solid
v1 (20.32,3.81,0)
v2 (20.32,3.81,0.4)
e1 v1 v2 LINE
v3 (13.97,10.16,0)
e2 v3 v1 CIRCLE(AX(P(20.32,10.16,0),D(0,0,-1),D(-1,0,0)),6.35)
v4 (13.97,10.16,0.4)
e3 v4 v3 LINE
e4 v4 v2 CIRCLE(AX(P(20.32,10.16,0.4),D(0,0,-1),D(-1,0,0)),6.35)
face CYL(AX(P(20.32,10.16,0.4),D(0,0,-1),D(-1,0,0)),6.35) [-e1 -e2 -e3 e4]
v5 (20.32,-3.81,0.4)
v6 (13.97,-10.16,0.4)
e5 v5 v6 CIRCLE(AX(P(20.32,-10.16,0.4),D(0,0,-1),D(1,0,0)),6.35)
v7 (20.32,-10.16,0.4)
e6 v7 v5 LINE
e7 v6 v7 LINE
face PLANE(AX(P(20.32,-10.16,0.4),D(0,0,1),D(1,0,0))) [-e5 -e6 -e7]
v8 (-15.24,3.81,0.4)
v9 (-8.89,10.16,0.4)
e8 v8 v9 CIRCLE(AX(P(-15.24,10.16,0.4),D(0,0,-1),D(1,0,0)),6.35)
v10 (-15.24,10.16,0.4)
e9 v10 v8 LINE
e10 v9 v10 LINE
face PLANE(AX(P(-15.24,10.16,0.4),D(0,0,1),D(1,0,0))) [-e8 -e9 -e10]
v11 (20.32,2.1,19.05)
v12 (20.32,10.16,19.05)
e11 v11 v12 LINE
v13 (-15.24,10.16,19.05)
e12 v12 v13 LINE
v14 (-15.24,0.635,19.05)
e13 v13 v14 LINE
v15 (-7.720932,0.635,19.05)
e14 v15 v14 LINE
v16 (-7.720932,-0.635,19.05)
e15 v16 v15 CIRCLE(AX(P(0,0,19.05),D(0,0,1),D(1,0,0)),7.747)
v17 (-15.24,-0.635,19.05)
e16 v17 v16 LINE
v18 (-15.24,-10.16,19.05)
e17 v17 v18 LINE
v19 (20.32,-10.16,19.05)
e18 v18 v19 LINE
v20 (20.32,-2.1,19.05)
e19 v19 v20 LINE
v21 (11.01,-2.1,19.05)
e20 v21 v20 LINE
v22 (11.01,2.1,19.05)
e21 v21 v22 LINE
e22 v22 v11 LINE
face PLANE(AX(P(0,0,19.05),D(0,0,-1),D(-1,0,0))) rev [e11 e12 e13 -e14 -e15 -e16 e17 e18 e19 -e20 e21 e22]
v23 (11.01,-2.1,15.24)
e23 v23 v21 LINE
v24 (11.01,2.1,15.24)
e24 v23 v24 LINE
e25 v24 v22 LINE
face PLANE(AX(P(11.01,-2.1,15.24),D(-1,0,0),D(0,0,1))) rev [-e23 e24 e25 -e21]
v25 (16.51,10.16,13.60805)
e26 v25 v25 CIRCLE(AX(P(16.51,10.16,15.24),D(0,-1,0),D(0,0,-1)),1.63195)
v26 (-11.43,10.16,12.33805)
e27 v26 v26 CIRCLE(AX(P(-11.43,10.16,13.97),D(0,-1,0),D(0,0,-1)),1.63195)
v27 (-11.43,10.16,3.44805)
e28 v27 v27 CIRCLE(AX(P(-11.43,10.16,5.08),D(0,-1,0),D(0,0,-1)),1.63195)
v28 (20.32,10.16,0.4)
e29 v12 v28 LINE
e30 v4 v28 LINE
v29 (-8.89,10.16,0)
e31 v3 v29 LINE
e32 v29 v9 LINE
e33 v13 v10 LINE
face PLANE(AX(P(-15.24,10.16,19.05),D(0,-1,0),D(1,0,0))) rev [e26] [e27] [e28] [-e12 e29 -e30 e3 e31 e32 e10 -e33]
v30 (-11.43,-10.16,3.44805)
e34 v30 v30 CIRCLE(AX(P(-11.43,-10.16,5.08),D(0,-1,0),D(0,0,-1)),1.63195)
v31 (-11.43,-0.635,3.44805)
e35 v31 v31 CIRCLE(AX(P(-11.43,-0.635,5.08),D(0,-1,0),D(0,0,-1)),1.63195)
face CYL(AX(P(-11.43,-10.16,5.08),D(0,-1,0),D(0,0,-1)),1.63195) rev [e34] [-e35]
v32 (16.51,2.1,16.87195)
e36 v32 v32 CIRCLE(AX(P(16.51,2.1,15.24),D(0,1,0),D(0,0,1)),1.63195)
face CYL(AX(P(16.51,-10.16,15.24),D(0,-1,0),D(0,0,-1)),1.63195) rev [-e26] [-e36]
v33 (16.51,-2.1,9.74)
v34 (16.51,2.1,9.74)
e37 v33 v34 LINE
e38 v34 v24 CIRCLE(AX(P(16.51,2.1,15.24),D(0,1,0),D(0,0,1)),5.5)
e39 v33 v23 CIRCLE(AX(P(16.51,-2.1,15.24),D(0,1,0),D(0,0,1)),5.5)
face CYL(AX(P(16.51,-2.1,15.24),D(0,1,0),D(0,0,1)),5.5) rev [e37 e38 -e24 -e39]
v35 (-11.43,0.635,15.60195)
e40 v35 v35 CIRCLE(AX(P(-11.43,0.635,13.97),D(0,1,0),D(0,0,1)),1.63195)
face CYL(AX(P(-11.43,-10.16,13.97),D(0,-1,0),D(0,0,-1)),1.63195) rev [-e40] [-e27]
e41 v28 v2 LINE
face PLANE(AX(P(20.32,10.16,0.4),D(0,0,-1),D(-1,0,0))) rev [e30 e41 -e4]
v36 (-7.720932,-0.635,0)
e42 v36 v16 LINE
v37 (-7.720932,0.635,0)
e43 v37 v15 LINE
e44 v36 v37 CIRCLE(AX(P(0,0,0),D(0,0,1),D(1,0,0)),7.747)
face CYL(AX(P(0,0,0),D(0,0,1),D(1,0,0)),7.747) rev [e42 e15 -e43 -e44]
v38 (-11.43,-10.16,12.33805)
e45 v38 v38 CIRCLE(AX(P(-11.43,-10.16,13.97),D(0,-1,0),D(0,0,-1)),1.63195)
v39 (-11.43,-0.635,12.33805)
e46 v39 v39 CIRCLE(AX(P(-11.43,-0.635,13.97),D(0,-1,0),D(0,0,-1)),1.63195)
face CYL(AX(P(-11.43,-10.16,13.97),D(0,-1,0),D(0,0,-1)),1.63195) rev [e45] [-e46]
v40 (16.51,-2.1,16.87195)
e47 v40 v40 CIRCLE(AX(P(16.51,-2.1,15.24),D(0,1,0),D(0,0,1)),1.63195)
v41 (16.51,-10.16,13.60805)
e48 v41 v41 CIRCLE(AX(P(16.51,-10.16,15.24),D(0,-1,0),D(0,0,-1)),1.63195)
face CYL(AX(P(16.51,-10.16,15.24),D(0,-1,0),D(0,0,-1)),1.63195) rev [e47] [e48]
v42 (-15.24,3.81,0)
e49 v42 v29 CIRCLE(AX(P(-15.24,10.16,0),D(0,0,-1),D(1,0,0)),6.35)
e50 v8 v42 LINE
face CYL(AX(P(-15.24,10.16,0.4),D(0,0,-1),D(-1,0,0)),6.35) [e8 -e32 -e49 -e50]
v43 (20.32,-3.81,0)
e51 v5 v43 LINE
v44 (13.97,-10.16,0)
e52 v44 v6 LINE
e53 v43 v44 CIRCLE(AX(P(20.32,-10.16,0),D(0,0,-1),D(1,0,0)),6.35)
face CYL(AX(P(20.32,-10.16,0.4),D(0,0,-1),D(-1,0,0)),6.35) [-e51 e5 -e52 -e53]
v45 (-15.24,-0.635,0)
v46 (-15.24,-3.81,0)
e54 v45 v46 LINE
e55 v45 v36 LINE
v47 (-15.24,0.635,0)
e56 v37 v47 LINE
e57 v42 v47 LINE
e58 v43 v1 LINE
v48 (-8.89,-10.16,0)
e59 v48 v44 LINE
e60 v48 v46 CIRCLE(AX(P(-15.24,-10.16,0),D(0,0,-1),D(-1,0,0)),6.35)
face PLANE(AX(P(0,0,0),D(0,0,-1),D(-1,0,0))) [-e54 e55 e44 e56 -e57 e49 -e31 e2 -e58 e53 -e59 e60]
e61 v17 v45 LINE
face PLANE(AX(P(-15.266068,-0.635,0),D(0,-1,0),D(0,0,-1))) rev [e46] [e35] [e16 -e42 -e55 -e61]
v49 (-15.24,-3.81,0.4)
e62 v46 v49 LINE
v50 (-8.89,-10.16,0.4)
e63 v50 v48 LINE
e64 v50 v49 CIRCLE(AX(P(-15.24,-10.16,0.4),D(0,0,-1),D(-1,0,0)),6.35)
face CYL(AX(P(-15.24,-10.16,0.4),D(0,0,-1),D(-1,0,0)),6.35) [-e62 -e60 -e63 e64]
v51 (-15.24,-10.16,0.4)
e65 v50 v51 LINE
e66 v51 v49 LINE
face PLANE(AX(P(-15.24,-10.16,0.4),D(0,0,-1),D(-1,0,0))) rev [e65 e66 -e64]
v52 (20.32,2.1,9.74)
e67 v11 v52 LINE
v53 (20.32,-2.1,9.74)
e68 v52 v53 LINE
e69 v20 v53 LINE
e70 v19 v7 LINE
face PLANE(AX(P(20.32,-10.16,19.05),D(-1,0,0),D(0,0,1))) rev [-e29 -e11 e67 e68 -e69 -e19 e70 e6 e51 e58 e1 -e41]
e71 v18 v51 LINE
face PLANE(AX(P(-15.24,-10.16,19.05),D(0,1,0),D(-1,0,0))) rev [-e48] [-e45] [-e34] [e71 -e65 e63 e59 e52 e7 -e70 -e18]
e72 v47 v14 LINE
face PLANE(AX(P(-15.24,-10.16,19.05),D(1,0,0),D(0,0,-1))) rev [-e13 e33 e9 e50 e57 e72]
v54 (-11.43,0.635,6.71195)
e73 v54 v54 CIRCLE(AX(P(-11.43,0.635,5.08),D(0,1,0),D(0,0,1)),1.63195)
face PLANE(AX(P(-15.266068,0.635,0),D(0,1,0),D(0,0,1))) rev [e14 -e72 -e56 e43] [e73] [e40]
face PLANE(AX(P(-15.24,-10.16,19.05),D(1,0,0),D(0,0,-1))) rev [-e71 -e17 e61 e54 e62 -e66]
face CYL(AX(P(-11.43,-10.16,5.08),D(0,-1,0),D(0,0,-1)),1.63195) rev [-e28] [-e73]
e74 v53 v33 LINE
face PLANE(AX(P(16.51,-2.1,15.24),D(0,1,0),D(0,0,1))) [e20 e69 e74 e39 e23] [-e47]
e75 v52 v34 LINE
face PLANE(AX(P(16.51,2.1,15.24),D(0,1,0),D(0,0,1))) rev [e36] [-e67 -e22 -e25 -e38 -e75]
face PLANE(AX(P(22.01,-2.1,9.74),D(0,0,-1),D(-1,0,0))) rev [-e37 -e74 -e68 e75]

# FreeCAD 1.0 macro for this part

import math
import FreeCAD as App
import Part
import Sketcher
from FreeCAD import Vector
Q = App.Units.Quantity


def add_polygon(sketch, points):
    """Adds a closed chain of lines whose ends are joined by coincident constraints."""
    first, n = sketch.GeometryCount, len(points)
    for a, b in zip(points, points[1:] + points[:1]):
        sketch.addGeometry(Part.LineSegment(App.Vector(*a, 0), App.Vector(*b, 0)), False)
    for i in range(n):
        sketch.addConstraint(Sketcher.Constraint("Coincident", first + i, 2, first + (i + 1) % n, 1))

doc = App.newDocument("Part")
body = doc.addObject("PartDesign::Body", "Body")

sketch1 = body.newObject("Sketcher::SketchObject", "Sketch")
sketch1.AttachmentSupport = (doc.getObject("XY_Plane"), [""])
sketch1.MapMode = "FlatFace"
add_polygon(sketch1, [(-15, 10), (-15, -10), (20, -10), (20, 10)])
sketch1.addConstraint(Sketcher.Constraint("Vertical", 0))
sketch1.addConstraint(Sketcher.Constraint("Horizontal", 1))
sketch1.addConstraint(Sketcher.Constraint("Vertical", 2))
sketch1.addConstraint(Sketcher.Constraint("Horizontal", 3))
sketch1.addConstraint(Sketcher.Constraint("DistanceX", 1, 1, 1, 2, Q("1.4 in")))
sketch1.addConstraint(Sketcher.Constraint("DistanceY", 0, 2, 0, 1, Q("0.8 in")))
sketch1.addConstraint(Sketcher.Constraint("DistanceX", 0, 2, -1, 1, Q("0.6 in")))
sketch1.addConstraint(Sketcher.Constraint("DistanceY", 0, 2, -1, 1, Q("0.4 in")))
pad1 = body.newObject("PartDesign::Pad", "Pad")
pad1.Profile = sketch1
pad1.Length = Q("0.75 in")

sketch2 = body.newObject("Sketcher::SketchObject", "Sketch001")
sketch2.AttachmentSupport = (doc.getObject("XY_Plane"), [""])
sketch2.MapMode = "FlatFace"
sketch2.AttachmentOffset = App.Placement(Vector(0, 0, 0.75 * 25.4), App.Rotation())
sketch2.addGeometry(Part.Circle(Vector(0, 0, 0), Vector(0, 0, 1), 8), False)
sketch2.addConstraint(Sketcher.Constraint("Coincident", 0, 3, -1, 1))
sketch2.addConstraint(Sketcher.Constraint("Diameter", 0, Q("0.61 in")))
pocket1 = body.newObject("PartDesign::Pocket", "Pocket")
pocket1.Profile = sketch2
pocket1.Type = "ThroughAll"

sketch3 = body.newObject("Sketcher::SketchObject", "Sketch002")
sketch3.AttachmentSupport = (doc.getObject("XY_Plane"), [""])
sketch3.MapMode = "FlatFace"
sketch3.AttachmentOffset = App.Placement(Vector(0, 0, 0.75 * 25.4), App.Rotation())
add_polygon(sketch3, [(-15.3, 0.6), (-15.3, -0.6), (-7.7, -0.6), (-7.7, 0.6)])
sketch3.addConstraint(Sketcher.Constraint("Vertical", 0))
sketch3.addConstraint(Sketcher.Constraint("Horizontal", 1))
sketch3.addConstraint(Sketcher.Constraint("Vertical", 2))
sketch3.addConstraint(Sketcher.Constraint("Horizontal", 3))
sketch3.addConstraint(Sketcher.Constraint("DistanceY", 0, 2, 0, 1, Q("0.05 in")))
sketch3.addConstraint(Sketcher.Constraint("DistanceY", 0, 2, -1, 1, Q("0.025 in")))
sketch3.addConstraint(Sketcher.Constraint("DistanceX", 1, 1, 1, 2, Q("7.545137 mm")))
sketch3.addConstraint(Sketcher.Constraint("DistanceX", 0, 2, -1, 1, Q("15.266068 mm")))
pocket2 = body.newObject("PartDesign::Pocket", "Pocket001")
pocket2.Profile = sketch3
pocket2.Type = "ThroughAll"

sketch4 = body.newObject("Sketcher::SketchObject", "Sketch003")
sketch4.AttachmentSupport = (doc.getObject("XZ_Plane"), [""])
sketch4.MapMode = "FlatFace"
sketch4.addGeometry(Part.LineSegment(Vector(11, 15, 0), Vector(11, 21, 0)), False)
sketch4.addGeometry(Part.LineSegment(Vector(11, 21, 0), Vector(22, 21, 0)), False)
sketch4.addGeometry(Part.LineSegment(Vector(22, 21, 0), Vector(22, 10, 0)), False)
sketch4.addGeometry(Part.LineSegment(Vector(22, 10, 0), Vector(17, 10, 0)), False)
sketch4.addGeometry(Part.ArcOfCircle(Part.Circle(Vector(17, 15, 0), Vector(0, 0, 1), 5), math.radians(180), math.radians(270)), False)
sketch4.addConstraint(Sketcher.Constraint("Coincident", 0, 2, 1, 1))
sketch4.addConstraint(Sketcher.Constraint("Coincident", 1, 2, 2, 1))
sketch4.addConstraint(Sketcher.Constraint("Coincident", 2, 2, 3, 1))
sketch4.addConstraint(Sketcher.Constraint("Tangent", 3, 2, 4, 2))
sketch4.addConstraint(Sketcher.Constraint("Tangent", 4, 1, 0, 1))
sketch4.addConstraint(Sketcher.Constraint("Vertical", 0))
sketch4.addConstraint(Sketcher.Constraint("Horizontal", 1))
sketch4.addConstraint(Sketcher.Constraint("Vertical", 2))
sketch4.addConstraint(Sketcher.Constraint("Horizontal", 3))
sketch4.addConstraint(Sketcher.Constraint("Equal", 3, 0))
sketch4.addConstraint(Sketcher.Constraint("DistanceY", -1, 1, 4, 3, Q("0.6 in")))
sketch4.addConstraint(Sketcher.Constraint("DistanceX", -1, 1, 4, 3, Q("0.65 in")))
sketch4.addConstraint(Sketcher.Constraint("Radius", 4, Q("5.5 mm")))
sketch4.addConstraint(Sketcher.Constraint("DistanceX", 1, 1, 1, 2, Q("11 mm")))
pocket3 = body.newObject("PartDesign::Pocket", "Pocket002")
pocket3.Profile = sketch4
pocket3.Length = 4.2
pocket3.Midplane = True

sketch5 = body.newObject("Sketcher::SketchObject", "Sketch004")
sketch5.AttachmentSupport = (doc.getObject("XZ_Plane"), [""])
sketch5.MapMode = "FlatFace"
sketch5.AttachmentOffset = App.Placement(Vector(0, 0, 0.4 * 25.4), App.Rotation())
sketch5.addGeometry(Part.Circle(Vector(-11.4, 14, 0), Vector(0, 0, 1), 1.6), False)
sketch5.addGeometry(Part.Circle(Vector(-11.4, 5.1, 0), Vector(0, 0, 1), 1.6), False)
sketch5.addGeometry(Part.Circle(Vector(16.5, 15.2, 0), Vector(0, 0, 1), 1.6), False)
sketch5.addConstraint(Sketcher.Constraint("Equal", 0, 1))
sketch5.addConstraint(Sketcher.Constraint("Equal", 1, 2))
sketch5.addConstraint(Sketcher.Constraint("Vertical", 0, 3, 1, 3))
sketch5.addConstraint(Sketcher.Constraint("Diameter", 0, Q("0.1285 in")))
sketch5.addConstraint(Sketcher.Constraint("DistanceY", -1, 1, 1, 3, Q("0.2 in")))
sketch5.addConstraint(Sketcher.Constraint("DistanceY", -1, 1, 2, 3, Q("0.6 in")))
sketch5.addConstraint(Sketcher.Constraint("DistanceX", 0, 3, 2, 3, Q("1.1 in")))
sketch5.addConstraint(Sketcher.Constraint("DistanceX", 0, 3, -1, 1, Q("0.45 in")))
sketch5.addConstraint(Sketcher.Constraint("DistanceY", -1, 1, 0, 3, Q("0.55 in")))
doc.recompute()
hole = body.newObject("PartDesign::Hole", "Hole")
hole.Profile = sketch5
hole.ThreadType = "None"
hole.Diameter = Q("0.1285 in")
hole.DepthType = "ThroughAll"

sketch6 = body.newObject("Sketcher::SketchObject", "Sketch005")
sketch6.AttachmentSupport = (doc.getObject("XY_Plane"), [""])
sketch6.MapMode = "FlatFace"
sketch6.addGeometry(Part.Circle(Vector(-15, -10, 0), Vector(0, 0, 1), 6), False)
sketch6.addGeometry(Part.Circle(Vector(20, -10, 0), Vector(0, 0, 1), 6), False)
sketch6.addGeometry(Part.Circle(Vector(20, 10, 0), Vector(0, 0, 1), 6), False)
sketch6.addGeometry(Part.Circle(Vector(-15, 10, 0), Vector(0, 0, 1), 6), False)
sketch6.addConstraint(Sketcher.Constraint("Equal", 0, 1))
sketch6.addConstraint(Sketcher.Constraint("Equal", 1, 2))
sketch6.addConstraint(Sketcher.Constraint("Equal", 2, 3))
sketch6.addConstraint(Sketcher.Constraint("Symmetric", 1, 3, 2, 3, -1))
sketch6.addConstraint(Sketcher.Constraint("Symmetric", 0, 3, 3, 3, -1))
sketch6.addConstraint(Sketcher.Constraint("Horizontal", 0, 3, 1, 3))
sketch6.addConstraint(Sketcher.Constraint("Diameter", 0, Q("0.5 in")))
sketch6.addConstraint(Sketcher.Constraint("DistanceX", 0, 3, -1, 1, Q("0.6 in")))
sketch6.addConstraint(Sketcher.Constraint("DistanceY", 0, 3, -1, 1, Q("0.4 in")))
sketch6.addConstraint(Sketcher.Constraint("DistanceX", -1, 1, 1, 3, Q("0.8 in")))
pad2 = body.newObject("PartDesign::Pad", "Pad001")
pad2.Profile = sketch6
pad2.Length = 0.4

doc.recompute()
